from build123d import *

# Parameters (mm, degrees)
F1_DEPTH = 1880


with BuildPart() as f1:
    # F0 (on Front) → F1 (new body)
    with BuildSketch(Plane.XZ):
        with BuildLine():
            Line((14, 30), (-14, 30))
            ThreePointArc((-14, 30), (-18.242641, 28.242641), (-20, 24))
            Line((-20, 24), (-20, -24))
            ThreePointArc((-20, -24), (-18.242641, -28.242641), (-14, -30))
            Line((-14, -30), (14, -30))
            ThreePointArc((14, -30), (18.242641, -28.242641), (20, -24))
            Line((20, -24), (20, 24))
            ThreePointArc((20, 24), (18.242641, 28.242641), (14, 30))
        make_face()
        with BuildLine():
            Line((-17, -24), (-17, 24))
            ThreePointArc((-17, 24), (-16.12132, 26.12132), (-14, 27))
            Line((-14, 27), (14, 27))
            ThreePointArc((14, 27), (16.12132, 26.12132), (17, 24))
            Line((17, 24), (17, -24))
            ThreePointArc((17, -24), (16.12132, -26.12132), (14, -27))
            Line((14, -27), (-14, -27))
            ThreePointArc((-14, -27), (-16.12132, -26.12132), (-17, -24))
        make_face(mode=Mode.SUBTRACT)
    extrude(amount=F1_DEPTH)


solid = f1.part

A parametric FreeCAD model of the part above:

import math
import FreeCAD as App
import Part
import Sketcher

V = App.Vector
Q = App.Units.Quantity

doc = App.newDocument("Part")
body = doc.addObject("PartDesign::Body", "Body")

sketch1 = body.newObject("Sketcher::SketchObject", "Sketch")
sketch1.AttachmentSupport = (doc.getObject("XZ_Plane"), [""])
sketch1.MapMode = "FlatFace"
sketch1.addGeometry([
    Part.LineSegment(V(14, 30, 0), V(-14, 30, 0)),
    Part.ArcOfCircle(Part.Circle(V(-14, 24, 0), V(0, 0, 1), 6), math.radians(90), math.radians(180)),
    Part.LineSegment(V(-20, 24, 0), V(-20, -24, 0)),
    Part.ArcOfCircle(Part.Circle(V(-14, -24, 0), V(0, 0, 1), 6), math.radians(180), math.radians(270)),
    Part.LineSegment(V(-14, -30, 0), V(14, -30, 0)),
    Part.ArcOfCircle(Part.Circle(V(14, -24, 0), V(0, 0, 1), 6), math.radians(-90), math.radians(0)),
    Part.LineSegment(V(20, -24, 0), V(20, 24, 0)),
    Part.ArcOfCircle(Part.Circle(V(14, 24, 0), V(0, 0, 1), 6), math.radians(0), math.radians(90)),
    Part.ArcOfCircle(Part.Circle(V(-14, -24, 0), V(0, 0, 1), 3), math.radians(-180), math.radians(-90)),
    Part.LineSegment(V(-17, -24, 0), V(-17, 24, 0)),
    Part.ArcOfCircle(Part.Circle(V(-14, 24, 0), V(0, 0, 1), 3), math.radians(90), math.radians(180)),
    Part.LineSegment(V(-14, 27, 0), V(14, 27, 0)),
    Part.ArcOfCircle(Part.Circle(V(14, 24, 0), V(0, 0, 1), 3), math.radians(0), math.radians(90)),
    Part.LineSegment(V(17, 24, 0), V(17, -24, 0)),
    Part.ArcOfCircle(Part.Circle(V(14, -24, 0), V(0, 0, 1), 3), math.radians(-90), math.radians(0)),
    Part.LineSegment(V(14, -27, 0), V(-14, -27, 0)),
], False)
sketch1.addConstraint([
    Sketcher.Constraint("Tangent", 0, 2, 1, 1),
    Sketcher.Constraint("Tangent", 1, 2, 2, 1),
    Sketcher.Constraint("Tangent", 2, 2, 3, 1),
    Sketcher.Constraint("Tangent", 3, 2, 4, 1),
    Sketcher.Constraint("Tangent", 4, 2, 5, 1),
    Sketcher.Constraint("Tangent", 5, 2, 6, 1),
    Sketcher.Constraint("Tangent", 6, 2, 7, 1),
    Sketcher.Constraint("Tangent", 7, 2, 0, 1),
    Sketcher.Constraint("Tangent", 8, 1, 9, 1),
    Sketcher.Constraint("Tangent", 9, 2, 10, 2),
    Sketcher.Constraint("Tangent", 10, 1, 11, 1),
    Sketcher.Constraint("Tangent", 11, 2, 12, 2),
    Sketcher.Constraint("Tangent", 12, 1, 13, 1),
    Sketcher.Constraint("Tangent", 13, 2, 14, 2),
    Sketcher.Constraint("Tangent", 14, 1, 15, 1),
    Sketcher.Constraint("Tangent", 15, 2, 8, 2),
    Sketcher.Constraint("Horizontal", 0),
    Sketcher.Constraint("Vertical", 2),
    Sketcher.Constraint("Horizontal", 4),
    Sketcher.Constraint("Vertical", 6),
    Sketcher.Constraint("Vertical", 9),
    Sketcher.Constraint("Horizontal", 11),
    Sketcher.Constraint("Vertical", 13),
    Sketcher.Constraint("Horizontal", 15),
    Sketcher.Constraint("Coincident", 8, 3, 3, 3),
    Sketcher.Constraint("Coincident", 10, 3, 1, 3),
    Sketcher.Constraint("Coincident", 12, 3, 7, 3),
    Sketcher.Constraint("Equal", 1, 3),
    Sketcher.Constraint("Equal", 3, 5),
    Sketcher.Constraint("Equal", 5, 7),
    Sketcher.Constraint("Equal", 12, 14),
    Sketcher.Constraint("Symmetric", 1, 3, 5, 3, -1, 1),
    Sketcher.Constraint("Radius", 1, Q("5.999999 mm")),
    Sketcher.Constraint("Radius", 8, Q("3.000001 mm")),
    Sketcher.Constraint("DistanceX", 0, 2, 0, 1, Q("28 mm")),
    Sketcher.Constraint("DistanceY", 2, 2, 2, 1, Q("48 mm")),
])
pad1 = body.newObject("PartDesign::Pad", "Pad")
pad1.Profile = sketch1
pad1.Length = 1880

doc.recompute()
